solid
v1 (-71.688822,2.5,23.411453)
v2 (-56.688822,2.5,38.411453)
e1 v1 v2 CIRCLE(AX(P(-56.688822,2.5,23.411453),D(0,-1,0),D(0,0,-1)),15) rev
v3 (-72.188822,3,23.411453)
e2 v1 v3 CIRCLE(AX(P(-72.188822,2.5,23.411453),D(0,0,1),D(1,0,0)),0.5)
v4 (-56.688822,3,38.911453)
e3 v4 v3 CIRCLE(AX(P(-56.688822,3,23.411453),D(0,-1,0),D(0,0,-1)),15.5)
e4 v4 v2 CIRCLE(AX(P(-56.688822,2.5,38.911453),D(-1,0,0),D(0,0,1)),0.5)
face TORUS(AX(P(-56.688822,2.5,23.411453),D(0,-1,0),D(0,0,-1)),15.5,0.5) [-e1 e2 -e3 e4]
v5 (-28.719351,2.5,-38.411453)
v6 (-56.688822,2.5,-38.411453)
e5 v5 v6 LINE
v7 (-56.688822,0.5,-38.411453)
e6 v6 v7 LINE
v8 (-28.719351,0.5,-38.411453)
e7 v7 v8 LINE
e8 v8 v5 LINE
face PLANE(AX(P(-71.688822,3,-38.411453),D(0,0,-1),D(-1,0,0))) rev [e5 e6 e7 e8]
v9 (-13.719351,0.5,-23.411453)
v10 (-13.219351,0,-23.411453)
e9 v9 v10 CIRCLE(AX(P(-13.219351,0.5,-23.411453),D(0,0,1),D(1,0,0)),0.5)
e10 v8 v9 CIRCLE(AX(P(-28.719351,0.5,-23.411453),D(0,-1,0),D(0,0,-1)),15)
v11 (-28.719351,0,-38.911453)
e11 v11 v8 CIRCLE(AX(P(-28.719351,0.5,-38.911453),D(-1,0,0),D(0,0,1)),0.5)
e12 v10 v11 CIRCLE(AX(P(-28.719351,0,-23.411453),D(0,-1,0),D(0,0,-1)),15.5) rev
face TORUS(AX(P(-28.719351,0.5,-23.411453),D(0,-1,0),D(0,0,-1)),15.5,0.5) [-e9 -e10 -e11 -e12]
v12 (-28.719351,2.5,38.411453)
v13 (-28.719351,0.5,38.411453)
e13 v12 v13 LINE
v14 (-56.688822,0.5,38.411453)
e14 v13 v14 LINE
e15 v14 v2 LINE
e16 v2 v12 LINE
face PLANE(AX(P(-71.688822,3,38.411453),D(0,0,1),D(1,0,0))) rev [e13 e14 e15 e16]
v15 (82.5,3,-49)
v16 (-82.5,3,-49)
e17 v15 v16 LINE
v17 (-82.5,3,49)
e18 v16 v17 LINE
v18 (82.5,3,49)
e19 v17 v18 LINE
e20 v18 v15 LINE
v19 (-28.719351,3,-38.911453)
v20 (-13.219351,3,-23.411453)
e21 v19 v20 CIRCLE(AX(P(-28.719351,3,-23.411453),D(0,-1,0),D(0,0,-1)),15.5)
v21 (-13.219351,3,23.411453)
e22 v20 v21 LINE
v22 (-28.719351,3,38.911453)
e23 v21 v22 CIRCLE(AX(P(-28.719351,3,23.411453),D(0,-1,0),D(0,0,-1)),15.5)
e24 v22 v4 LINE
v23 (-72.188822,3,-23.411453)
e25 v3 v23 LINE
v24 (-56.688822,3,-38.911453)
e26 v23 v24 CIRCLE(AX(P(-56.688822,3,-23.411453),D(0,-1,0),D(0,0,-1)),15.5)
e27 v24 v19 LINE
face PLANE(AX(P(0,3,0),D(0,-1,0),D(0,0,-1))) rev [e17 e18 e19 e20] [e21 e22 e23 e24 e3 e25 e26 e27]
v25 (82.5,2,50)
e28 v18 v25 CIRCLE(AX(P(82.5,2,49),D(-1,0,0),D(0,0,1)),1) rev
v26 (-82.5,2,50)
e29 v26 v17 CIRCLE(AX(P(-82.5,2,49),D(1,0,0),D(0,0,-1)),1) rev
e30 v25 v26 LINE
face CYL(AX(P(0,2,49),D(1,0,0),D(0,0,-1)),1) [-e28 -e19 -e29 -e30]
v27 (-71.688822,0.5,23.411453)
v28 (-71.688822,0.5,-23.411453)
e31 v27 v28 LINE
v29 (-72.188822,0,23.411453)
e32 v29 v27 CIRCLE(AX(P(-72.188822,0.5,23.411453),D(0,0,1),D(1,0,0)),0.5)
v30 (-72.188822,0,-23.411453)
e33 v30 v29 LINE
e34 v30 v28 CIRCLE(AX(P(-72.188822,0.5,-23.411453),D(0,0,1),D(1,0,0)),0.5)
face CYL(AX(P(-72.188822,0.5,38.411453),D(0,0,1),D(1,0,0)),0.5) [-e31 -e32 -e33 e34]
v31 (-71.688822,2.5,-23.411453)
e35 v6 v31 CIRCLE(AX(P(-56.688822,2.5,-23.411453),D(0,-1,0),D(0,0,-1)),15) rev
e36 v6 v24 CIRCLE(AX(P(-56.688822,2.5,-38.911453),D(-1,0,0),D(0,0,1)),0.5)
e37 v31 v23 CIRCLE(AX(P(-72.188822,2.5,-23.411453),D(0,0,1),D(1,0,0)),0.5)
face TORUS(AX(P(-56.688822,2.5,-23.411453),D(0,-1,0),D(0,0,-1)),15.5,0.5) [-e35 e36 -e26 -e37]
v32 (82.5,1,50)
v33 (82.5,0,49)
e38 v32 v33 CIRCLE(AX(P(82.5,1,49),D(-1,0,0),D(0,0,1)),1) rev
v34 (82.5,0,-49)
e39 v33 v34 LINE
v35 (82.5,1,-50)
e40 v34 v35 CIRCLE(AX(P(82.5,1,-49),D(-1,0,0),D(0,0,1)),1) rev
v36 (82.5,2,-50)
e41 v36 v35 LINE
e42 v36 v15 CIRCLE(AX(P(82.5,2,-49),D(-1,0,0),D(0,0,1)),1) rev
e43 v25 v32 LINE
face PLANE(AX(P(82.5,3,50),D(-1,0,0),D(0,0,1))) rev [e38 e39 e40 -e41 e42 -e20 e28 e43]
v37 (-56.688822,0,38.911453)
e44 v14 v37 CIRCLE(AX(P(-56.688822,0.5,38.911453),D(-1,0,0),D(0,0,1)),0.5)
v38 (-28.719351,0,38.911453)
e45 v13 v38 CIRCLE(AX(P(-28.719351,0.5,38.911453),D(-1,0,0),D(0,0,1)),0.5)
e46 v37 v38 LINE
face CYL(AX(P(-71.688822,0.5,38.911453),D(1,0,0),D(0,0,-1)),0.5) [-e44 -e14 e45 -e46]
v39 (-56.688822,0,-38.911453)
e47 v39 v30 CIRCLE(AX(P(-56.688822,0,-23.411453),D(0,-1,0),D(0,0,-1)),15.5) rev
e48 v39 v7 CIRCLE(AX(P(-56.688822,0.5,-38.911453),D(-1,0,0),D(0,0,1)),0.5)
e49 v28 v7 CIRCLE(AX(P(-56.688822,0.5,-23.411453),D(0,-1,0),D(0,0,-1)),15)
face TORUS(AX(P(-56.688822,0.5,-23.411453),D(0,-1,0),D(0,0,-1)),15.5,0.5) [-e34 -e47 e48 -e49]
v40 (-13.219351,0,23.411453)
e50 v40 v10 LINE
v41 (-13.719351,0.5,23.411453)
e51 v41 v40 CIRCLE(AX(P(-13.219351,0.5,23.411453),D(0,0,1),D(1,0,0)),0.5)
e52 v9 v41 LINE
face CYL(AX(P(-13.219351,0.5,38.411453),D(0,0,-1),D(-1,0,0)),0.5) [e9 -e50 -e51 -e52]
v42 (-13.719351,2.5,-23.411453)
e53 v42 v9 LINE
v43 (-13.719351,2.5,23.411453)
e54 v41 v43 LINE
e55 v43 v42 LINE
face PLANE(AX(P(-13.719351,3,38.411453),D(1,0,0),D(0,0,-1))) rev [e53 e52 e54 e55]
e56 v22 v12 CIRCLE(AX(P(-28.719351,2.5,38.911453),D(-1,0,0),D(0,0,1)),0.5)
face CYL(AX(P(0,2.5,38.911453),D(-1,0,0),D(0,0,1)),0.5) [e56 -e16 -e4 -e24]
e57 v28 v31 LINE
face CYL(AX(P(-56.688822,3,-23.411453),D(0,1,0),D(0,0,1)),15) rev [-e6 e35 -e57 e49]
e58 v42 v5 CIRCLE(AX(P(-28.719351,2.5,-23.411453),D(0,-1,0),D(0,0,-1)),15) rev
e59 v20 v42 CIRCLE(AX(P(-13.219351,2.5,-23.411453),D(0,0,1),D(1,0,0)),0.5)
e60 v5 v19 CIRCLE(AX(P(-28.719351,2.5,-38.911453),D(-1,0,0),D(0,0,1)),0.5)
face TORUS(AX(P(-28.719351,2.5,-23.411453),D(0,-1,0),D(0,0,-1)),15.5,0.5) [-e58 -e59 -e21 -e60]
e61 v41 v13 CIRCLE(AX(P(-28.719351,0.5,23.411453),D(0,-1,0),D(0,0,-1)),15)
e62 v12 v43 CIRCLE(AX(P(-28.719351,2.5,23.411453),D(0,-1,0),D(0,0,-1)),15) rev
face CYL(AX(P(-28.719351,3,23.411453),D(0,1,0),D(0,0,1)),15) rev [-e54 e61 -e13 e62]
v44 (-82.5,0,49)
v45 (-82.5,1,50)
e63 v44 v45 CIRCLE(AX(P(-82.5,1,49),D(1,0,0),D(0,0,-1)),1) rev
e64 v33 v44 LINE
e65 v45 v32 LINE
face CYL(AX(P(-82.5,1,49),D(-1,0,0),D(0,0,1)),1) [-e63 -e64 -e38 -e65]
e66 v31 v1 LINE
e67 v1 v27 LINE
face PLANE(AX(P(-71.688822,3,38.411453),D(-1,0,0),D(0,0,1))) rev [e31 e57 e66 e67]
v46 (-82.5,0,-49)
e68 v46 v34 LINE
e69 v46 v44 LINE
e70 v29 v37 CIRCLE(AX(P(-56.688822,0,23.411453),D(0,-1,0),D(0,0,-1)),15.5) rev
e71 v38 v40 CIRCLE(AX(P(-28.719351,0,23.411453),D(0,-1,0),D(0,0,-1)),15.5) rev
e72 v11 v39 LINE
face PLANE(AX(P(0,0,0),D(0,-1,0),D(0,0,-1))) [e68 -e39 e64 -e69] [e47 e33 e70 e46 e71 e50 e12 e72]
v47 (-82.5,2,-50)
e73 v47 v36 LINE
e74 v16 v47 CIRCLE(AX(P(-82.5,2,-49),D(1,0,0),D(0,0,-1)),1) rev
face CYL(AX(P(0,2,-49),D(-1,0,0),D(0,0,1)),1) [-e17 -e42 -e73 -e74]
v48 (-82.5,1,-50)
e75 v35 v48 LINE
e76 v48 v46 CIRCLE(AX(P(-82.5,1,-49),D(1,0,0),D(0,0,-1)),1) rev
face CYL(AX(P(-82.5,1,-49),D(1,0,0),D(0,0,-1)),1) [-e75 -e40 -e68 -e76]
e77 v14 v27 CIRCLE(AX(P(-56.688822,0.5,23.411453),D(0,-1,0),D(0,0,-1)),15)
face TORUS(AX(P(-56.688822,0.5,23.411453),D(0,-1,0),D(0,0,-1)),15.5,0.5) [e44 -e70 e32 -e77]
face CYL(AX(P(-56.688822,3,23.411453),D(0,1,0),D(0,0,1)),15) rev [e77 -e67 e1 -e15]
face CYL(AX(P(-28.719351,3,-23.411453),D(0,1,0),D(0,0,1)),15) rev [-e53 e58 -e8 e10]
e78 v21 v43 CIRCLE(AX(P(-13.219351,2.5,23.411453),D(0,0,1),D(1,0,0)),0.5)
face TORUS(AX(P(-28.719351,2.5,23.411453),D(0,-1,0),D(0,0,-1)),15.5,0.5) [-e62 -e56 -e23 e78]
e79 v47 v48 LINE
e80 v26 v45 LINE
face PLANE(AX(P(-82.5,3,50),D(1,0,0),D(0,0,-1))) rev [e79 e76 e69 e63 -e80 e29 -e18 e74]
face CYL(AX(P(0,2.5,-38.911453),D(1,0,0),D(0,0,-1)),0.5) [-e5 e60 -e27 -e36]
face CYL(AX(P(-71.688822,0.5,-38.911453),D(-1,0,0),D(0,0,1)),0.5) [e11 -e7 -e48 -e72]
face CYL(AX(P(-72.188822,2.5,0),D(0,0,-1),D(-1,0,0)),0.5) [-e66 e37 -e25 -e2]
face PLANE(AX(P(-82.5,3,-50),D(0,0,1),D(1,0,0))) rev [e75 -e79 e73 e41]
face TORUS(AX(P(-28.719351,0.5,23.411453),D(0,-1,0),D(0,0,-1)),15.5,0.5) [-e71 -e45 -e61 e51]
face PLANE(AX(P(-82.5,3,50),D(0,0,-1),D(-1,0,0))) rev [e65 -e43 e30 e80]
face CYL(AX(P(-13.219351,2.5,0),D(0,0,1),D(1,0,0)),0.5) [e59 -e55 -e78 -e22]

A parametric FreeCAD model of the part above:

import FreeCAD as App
import Part
import Sketcher


def edges_at(feature, points):
    """Names of the edges that pass closest to the given points."""
    edges = feature.Shape.Edges
    near = lambda p: min(range(len(edges)), key=lambda i: edges[i].distToShape(Part.Vertex(*p))[0])
    return sorted({f"Edge{near(p) + 1}" for p in points})

doc = App.newDocument("Part")
body = doc.addObject("PartDesign::Body", "Body")

# Sketch on XZ plane
sketch1 = body.newObject("Sketcher::SketchObject", "Sketch")
sketch1.AttachmentSupport = (doc.getObject("XZ_Plane"), [""])
sketch1.MapMode = "FlatFace"
sketch1.addGeometry([
    Part.LineSegment(App.Vector(-82, -50, 0), App.Vector(-82, 50, 0)),
    Part.LineSegment(App.Vector(-82, 50, 0), App.Vector(82, 50, 0)),
    Part.LineSegment(App.Vector(82, 50, 0), App.Vector(82, -50, 0)),
    Part.LineSegment(App.Vector(82, -50, 0), App.Vector(-82, -50, 0)),
], False)
sketch1.addConstraint([
    Sketcher.Constraint("Coincident", 0, 2, 1, 1),
    Sketcher.Constraint("Coincident", 1, 2, 2, 1),
    Sketcher.Constraint("Coincident", 2, 2, 3, 1),
    Sketcher.Constraint("Coincident", 3, 2, 0, 1),
    Sketcher.Constraint("Vertical", 0),
    Sketcher.Constraint("Horizontal", 1),
    Sketcher.Constraint("Vertical", 2),
    Sketcher.Constraint("Horizontal", 3),
    Sketcher.Constraint("Symmetric", 0, 2, 2, 2, -1, 1),
    Sketcher.Constraint("DistanceX", 1, 1, 1, 2, 165.0),
    Sketcher.Constraint("DistanceY", 0, 1, 0, 2, 100.0),
])
pad1 = body.newObject("PartDesign::Pad", "Pad")
pad1.Profile = sketch1
pad1.Length = 3
pad1.Reversed = True

# Sketch on XZ plane
sketch2 = body.newObject("Sketcher::SketchObject", "Sketch001")
sketch2.AttachmentSupport = (doc.getObject("XZ_Plane"), [""])
sketch2.MapMode = "FlatFace"
sketch2.addGeometry([
    Part.LineSegment(App.Vector(-72, 38, 0), App.Vector(-72, -38, 0)),
    Part.LineSegment(App.Vector(-72, -38, 0), App.Vector(-14, -38, 0)),
    Part.LineSegment(App.Vector(-14, -38, 0), App.Vector(-14, 38, 0)),
    Part.LineSegment(App.Vector(-14, 38, 0), App.Vector(-72, 38, 0)),
], False)
sketch2.addConstraint([
    Sketcher.Constraint("Coincident", 0, 2, 1, 1),
    Sketcher.Constraint("Coincident", 1, 2, 2, 1),
    Sketcher.Constraint("Coincident", 2, 2, 3, 1),
    Sketcher.Constraint("Coincident", 3, 2, 0, 1),
    Sketcher.Constraint("Vertical", 0),
    Sketcher.Constraint("Horizontal", 1),
    Sketcher.Constraint("Vertical", 2),
    Sketcher.Constraint("Horizontal", 3),
    Sketcher.Constraint("DistanceX", 1, 1, 1, 2, 57.969472),
    Sketcher.Constraint("DistanceY", 0, 2, 0, 1, 76.822906),
    Sketcher.Constraint("DistanceX", 1, 2, -1, 1, 13.719351),
    Sketcher.Constraint("DistanceY", 0, 2, -1, 1, 38.411453),
])
pocket1 = body.newObject("PartDesign::Pocket", "Pocket")
pocket1.Profile = sketch2
pocket1.Type = "ThroughAll"
doc.recompute()

fillet = body.newObject("PartDesign::Fillet", "Fillet")
fillet.Base = (pocket1, edges_at(pocket1, [
    (-13.719, 1.5, 38.411),
    (-13.719, 1.5, -38.411),
    (-71.689, 1.5, -38.411),
    (-71.689, 1.5, 38.411),
]))
fillet.Radius = 15
doc.recompute()

fillet2 = body.newObject("PartDesign::Fillet", "Fillet001")
fillet2.Base = (fillet, edges_at(fillet, [
    (0, 3, 50),
    (0, 0, 50),
    (0, 0, -50),
    (0, 3, -50),
]))
fillet2.Radius = 1
doc.recompute()

fillet3 = body.newObject("PartDesign::Fillet", "Fillet002")
fillet3.Base = (fillet2, edges_at(fillet2, [
    (-42.704, 0, -38.411),
    (-42.704, 3, -38.411),
    (-71.689, 0, 0),
    (-71.689, 3, 0),
    (-42.704, 0, 38.411),
    (-42.704, 3, 38.411),
    (-13.719, 0, 0),
    (-13.719, 3, 0),
    (-67.295, 0, -34.018),
    (-67.295, 3, -34.018),
    (-67.295, 0, 34.018),
    (-67.295, 3, 34.018),
    (-18.113, 0, -34.018),
    (-18.113, 3, -34.018),
    (-18.113, 0, 34.018),
    (-18.113, 3, 34.018),
]))
fillet3.Radius = 0.5

doc.recompute()
